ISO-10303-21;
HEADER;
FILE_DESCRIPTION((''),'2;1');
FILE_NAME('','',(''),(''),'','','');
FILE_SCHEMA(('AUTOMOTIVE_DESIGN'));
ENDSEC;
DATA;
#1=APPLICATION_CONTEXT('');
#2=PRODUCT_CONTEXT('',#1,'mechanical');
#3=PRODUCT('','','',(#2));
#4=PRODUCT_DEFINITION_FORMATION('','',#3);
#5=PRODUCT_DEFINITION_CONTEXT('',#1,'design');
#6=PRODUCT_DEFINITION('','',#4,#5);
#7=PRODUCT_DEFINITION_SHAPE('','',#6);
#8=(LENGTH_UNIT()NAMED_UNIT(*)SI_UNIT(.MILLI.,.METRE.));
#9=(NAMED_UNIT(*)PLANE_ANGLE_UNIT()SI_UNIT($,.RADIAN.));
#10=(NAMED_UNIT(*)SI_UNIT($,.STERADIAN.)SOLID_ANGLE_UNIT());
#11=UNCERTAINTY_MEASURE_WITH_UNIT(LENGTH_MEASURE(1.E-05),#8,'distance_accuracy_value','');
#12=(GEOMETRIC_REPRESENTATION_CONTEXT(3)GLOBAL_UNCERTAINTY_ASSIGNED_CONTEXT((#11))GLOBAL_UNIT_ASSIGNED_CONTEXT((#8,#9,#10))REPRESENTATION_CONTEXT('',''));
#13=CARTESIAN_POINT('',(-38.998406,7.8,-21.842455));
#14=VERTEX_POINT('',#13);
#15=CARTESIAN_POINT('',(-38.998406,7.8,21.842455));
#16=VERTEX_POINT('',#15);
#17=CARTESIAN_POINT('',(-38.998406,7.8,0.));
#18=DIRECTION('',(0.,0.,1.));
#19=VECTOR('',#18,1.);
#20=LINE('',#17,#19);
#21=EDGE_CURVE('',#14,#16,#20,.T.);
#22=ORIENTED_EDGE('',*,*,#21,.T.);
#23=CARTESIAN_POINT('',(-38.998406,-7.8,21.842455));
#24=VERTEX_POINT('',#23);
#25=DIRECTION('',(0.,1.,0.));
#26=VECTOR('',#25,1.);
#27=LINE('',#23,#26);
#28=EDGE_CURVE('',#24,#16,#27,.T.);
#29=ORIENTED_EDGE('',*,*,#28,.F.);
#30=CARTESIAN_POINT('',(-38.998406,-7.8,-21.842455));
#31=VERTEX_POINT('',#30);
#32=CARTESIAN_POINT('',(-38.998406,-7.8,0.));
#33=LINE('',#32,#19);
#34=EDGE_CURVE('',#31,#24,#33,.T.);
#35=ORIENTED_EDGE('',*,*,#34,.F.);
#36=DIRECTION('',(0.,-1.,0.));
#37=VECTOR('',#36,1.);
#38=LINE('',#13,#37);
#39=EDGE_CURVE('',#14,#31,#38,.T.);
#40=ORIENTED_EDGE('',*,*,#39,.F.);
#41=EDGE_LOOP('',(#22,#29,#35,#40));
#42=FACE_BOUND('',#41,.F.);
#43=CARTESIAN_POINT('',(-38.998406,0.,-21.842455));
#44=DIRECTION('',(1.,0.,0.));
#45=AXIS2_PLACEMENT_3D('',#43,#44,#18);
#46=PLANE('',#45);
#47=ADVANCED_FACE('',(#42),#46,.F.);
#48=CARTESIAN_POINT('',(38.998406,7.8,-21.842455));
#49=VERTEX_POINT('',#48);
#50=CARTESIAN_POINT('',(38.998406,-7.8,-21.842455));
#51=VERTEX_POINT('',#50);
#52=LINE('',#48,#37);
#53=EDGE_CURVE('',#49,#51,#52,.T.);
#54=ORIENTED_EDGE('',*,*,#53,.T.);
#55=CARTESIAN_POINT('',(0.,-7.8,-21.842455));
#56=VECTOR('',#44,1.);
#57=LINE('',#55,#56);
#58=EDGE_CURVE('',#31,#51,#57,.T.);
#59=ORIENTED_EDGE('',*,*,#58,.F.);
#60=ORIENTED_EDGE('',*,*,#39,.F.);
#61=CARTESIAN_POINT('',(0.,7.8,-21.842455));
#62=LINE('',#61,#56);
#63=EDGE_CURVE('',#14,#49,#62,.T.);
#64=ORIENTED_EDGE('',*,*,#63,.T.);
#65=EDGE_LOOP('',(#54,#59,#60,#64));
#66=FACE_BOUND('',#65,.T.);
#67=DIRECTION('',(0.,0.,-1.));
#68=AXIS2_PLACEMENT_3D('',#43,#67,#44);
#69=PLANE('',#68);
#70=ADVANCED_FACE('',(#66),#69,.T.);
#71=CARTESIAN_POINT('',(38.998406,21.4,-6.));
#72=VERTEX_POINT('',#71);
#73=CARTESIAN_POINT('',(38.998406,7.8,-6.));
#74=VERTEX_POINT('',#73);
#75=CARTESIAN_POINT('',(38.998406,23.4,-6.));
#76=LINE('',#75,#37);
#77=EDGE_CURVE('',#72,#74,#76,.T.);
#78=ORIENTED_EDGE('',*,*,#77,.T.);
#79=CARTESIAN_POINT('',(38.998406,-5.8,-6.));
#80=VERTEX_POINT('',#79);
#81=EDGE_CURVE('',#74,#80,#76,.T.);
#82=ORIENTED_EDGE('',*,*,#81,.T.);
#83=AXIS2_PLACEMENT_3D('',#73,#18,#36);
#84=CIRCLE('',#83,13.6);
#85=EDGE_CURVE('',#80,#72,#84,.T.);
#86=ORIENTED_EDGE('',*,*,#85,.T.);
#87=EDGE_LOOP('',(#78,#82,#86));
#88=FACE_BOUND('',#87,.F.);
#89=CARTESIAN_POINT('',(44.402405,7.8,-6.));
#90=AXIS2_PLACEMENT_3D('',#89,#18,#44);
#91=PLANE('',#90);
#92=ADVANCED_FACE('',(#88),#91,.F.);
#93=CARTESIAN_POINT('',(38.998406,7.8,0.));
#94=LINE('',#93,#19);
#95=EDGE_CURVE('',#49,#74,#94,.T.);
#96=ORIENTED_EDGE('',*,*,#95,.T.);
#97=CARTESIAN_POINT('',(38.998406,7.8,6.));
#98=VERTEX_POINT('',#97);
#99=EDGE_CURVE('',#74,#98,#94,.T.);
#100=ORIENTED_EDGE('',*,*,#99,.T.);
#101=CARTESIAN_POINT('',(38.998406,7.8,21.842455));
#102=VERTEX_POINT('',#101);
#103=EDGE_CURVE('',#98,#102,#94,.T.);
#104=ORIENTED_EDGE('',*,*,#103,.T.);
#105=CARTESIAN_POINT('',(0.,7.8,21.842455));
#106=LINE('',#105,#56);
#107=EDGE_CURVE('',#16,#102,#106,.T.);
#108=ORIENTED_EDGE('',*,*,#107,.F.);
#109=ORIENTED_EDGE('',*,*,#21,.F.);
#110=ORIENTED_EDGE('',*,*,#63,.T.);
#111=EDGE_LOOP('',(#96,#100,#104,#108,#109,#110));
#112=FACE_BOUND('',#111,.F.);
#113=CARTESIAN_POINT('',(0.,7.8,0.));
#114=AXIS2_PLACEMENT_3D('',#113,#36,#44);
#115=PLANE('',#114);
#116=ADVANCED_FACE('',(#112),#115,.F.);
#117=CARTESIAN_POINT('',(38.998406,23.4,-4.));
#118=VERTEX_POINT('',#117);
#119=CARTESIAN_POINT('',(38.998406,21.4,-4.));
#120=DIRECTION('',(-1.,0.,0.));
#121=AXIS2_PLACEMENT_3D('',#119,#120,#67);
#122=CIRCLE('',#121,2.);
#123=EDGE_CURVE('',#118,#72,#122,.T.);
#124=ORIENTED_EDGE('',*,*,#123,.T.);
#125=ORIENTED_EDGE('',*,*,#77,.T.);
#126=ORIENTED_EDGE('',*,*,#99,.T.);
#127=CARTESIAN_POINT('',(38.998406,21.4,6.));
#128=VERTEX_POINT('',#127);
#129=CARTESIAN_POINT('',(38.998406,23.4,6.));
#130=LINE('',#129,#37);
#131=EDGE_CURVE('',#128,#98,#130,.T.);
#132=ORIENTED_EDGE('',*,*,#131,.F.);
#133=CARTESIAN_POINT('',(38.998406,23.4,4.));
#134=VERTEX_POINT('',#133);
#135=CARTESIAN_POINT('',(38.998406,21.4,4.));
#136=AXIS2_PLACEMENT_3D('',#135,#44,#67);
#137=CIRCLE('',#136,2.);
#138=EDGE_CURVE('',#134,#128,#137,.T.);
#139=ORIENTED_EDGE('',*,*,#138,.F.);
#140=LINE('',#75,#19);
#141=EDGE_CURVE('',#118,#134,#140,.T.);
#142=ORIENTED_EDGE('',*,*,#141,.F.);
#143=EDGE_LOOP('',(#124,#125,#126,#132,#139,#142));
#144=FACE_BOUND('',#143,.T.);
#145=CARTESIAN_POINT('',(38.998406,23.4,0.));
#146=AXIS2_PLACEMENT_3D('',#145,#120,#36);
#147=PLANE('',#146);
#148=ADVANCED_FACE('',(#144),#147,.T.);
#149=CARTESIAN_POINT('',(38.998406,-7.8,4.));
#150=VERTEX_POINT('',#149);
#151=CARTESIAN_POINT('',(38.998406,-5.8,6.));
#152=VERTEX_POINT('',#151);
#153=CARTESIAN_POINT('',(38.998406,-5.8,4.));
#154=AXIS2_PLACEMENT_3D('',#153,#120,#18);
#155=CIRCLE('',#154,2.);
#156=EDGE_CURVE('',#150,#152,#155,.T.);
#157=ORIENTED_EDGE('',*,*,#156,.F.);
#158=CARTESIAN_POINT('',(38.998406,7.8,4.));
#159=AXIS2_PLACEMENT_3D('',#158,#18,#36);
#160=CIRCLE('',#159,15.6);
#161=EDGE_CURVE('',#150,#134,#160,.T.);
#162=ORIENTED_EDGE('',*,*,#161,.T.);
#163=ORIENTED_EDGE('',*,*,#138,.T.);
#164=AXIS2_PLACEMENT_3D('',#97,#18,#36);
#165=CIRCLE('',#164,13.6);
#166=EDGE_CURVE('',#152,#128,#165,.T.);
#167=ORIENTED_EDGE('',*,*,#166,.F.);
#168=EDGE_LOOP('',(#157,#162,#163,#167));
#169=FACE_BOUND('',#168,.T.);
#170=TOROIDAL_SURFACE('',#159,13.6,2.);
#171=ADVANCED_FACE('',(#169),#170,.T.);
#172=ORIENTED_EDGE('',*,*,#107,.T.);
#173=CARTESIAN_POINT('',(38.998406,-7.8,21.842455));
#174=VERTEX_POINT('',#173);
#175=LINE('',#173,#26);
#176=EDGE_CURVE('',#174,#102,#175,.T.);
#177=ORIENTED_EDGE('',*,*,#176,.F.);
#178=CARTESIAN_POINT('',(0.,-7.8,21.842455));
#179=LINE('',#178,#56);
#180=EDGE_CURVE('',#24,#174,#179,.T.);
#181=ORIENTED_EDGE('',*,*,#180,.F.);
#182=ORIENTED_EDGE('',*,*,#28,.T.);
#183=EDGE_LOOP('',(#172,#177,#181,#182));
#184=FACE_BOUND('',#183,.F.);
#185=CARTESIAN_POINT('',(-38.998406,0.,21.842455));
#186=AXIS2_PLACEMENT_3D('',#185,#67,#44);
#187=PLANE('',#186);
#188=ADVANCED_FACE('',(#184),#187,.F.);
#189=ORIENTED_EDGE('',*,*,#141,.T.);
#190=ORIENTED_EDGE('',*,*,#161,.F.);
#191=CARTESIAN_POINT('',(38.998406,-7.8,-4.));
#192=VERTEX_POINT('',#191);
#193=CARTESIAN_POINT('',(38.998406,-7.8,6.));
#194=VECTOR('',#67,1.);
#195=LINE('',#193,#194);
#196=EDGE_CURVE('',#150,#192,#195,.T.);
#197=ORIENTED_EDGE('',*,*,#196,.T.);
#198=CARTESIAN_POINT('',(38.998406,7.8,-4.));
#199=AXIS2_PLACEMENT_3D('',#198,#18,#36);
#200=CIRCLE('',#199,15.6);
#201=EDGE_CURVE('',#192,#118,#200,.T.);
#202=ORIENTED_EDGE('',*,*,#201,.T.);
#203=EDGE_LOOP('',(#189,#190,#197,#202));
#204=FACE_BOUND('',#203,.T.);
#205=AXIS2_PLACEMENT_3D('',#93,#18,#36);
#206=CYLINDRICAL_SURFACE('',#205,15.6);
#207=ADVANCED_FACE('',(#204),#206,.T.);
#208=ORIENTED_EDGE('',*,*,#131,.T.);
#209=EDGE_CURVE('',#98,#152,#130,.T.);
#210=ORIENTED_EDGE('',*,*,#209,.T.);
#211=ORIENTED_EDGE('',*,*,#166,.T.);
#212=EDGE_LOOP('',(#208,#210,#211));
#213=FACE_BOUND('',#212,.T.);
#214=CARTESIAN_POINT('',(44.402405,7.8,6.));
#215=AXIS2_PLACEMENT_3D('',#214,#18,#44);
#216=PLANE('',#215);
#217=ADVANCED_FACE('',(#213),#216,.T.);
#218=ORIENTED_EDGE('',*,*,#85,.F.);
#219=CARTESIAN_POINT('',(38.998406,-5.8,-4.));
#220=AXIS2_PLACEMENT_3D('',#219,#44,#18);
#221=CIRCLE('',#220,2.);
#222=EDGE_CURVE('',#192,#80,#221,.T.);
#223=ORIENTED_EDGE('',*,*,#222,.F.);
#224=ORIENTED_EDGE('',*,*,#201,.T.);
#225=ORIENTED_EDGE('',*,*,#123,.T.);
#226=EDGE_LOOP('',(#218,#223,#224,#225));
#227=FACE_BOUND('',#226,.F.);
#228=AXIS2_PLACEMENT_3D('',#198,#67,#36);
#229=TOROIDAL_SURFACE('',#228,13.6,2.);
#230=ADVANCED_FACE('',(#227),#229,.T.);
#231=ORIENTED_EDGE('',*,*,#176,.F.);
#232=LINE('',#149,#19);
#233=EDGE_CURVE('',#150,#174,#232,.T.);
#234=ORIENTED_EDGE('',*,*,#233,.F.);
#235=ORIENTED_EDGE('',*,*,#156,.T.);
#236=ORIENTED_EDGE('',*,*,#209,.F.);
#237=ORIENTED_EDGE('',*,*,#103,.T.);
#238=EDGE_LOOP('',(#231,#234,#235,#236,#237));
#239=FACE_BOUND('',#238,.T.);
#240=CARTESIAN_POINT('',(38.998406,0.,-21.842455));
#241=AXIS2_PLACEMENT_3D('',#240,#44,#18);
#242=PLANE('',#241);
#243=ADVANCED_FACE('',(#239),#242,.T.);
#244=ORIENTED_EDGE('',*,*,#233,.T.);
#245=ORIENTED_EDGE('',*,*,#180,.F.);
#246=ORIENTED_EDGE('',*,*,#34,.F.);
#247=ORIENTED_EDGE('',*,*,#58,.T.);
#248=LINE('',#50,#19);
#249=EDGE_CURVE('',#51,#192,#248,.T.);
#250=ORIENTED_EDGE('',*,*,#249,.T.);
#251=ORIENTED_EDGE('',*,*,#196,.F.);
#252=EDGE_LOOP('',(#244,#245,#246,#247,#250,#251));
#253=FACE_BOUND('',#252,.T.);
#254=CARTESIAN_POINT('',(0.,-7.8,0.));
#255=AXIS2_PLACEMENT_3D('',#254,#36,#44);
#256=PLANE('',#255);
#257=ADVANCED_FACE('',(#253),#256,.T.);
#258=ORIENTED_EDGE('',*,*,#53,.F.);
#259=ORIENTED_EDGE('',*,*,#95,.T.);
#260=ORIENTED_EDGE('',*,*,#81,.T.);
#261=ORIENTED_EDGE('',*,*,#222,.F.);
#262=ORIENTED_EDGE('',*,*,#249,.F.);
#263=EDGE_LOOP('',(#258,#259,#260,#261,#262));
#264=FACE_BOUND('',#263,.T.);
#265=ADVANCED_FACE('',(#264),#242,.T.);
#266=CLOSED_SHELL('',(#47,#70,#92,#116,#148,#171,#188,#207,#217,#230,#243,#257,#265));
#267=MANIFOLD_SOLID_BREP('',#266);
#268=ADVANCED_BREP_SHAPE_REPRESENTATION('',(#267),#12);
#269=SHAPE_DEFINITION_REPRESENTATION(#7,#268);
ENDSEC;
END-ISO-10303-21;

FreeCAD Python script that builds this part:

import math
import FreeCAD as App
import Part
import Sketcher

V = App.Vector
Q = App.Units.Quantity


def edges_at(feature, points):
    """Names of the edges that pass closest to the given points."""
    edges = feature.Shape.Edges
    near = lambda p: min(range(len(edges)), key=lambda i: edges[i].distToShape(Part.Vertex(*p))[0])
    return sorted({f"Edge{near(p) + 1}" for p in points})


def add_polygon(sketch, points):
    """Adds a closed chain of lines whose ends are joined by coincident constraints."""
    first, n = sketch.GeometryCount, len(points)
    for a, b in zip(points, points[1:] + points[:1]):
        sketch.addGeometry(Part.LineSegment(App.Vector(*a, 0), App.Vector(*b, 0)), False)
    for i in range(n):
        sketch.addConstraint(Sketcher.Constraint("Coincident", first + i, 2, first + (i + 1) % n, 1))

doc = App.newDocument("Part")
body = doc.addObject("PartDesign::Body", "Body")

# Sketch on XZ plane
sketch1 = body.newObject("Sketcher::SketchObject", "Sketch")
sketch1.AttachmentSupport = (doc.getObject("XZ_Plane"), [""])
sketch1.MapMode = "FlatFace"
add_polygon(sketch1, [(-39, 22), (-39, -22), (39, -22), (39, 22)])  # lines 0-3
sketch1.addConstraint([
    Sketcher.Constraint("Vertical", 0),
    Sketcher.Constraint("Horizontal", 1),
    Sketcher.Constraint("Vertical", 2),
    Sketcher.Constraint("Horizontal", 3),
    Sketcher.Constraint("Symmetric", 0, 2, 2, 2, -1, 1),
    Sketcher.Constraint("DistanceY", 0, 2, 0, 1, Q("43.68491 mm")),
    Sketcher.Constraint("DistanceX", 1, 1, 1, 2, Q("77.996812 mm")),
])
pad1 = body.newObject("PartDesign::Pad", "Pad")
pad1.Profile = sketch1
pad1.Length = 15.6
pad1.Midplane = True

# Sketch on XY plane
sketch2 = body.newObject("Sketcher::SketchObject", "Sketch001")
sketch2.AttachmentSupport = (doc.getObject("XY_Plane"), [""])
sketch2.MapMode = "FlatFace"
sketch2.addGeometry([
    Part.ArcOfCircle(Part.Circle(V(39, 8, 0), V(0, 0, 1), 16), math.radians(-90), math.radians(90)),
    Part.LineSegment(V(39, 23, 0), V(39, -8, 0)),
], False)
sketch2.addConstraint([
    Sketcher.Constraint("Coincident", 0, 1, 1, 2),
    Sketcher.Constraint("Coincident", 1, 1, 0, 2),
    Sketcher.Constraint("Vertical", 1),
    Sketcher.Constraint("Radius", 0, Q("15.6 mm")),
    Sketcher.Constraint("DistanceY", -1, 1, 0, 3, Q("7.8 mm")),
    Sketcher.Constraint("DistanceX", -1, 1, 0, 3, Q("38.998406 mm")),
    Sketcher.Constraint("DistanceX", -1, 1, 0, 1, Q("38.998406 mm")),
])
pad2 = body.newObject("PartDesign::Pad", "Pad001")
pad2.Profile = sketch2
pad2.Length = 12
pad2.Midplane = True
doc.recompute()

fillet = body.newObject("PartDesign::Fillet", "Fillet")
fillet.Base = (pad2, edges_at(pad2, [(54.598, 7.8, 6), (54.598, 7.8, -6)]))
fillet.Radius = 2

doc.recompute()
